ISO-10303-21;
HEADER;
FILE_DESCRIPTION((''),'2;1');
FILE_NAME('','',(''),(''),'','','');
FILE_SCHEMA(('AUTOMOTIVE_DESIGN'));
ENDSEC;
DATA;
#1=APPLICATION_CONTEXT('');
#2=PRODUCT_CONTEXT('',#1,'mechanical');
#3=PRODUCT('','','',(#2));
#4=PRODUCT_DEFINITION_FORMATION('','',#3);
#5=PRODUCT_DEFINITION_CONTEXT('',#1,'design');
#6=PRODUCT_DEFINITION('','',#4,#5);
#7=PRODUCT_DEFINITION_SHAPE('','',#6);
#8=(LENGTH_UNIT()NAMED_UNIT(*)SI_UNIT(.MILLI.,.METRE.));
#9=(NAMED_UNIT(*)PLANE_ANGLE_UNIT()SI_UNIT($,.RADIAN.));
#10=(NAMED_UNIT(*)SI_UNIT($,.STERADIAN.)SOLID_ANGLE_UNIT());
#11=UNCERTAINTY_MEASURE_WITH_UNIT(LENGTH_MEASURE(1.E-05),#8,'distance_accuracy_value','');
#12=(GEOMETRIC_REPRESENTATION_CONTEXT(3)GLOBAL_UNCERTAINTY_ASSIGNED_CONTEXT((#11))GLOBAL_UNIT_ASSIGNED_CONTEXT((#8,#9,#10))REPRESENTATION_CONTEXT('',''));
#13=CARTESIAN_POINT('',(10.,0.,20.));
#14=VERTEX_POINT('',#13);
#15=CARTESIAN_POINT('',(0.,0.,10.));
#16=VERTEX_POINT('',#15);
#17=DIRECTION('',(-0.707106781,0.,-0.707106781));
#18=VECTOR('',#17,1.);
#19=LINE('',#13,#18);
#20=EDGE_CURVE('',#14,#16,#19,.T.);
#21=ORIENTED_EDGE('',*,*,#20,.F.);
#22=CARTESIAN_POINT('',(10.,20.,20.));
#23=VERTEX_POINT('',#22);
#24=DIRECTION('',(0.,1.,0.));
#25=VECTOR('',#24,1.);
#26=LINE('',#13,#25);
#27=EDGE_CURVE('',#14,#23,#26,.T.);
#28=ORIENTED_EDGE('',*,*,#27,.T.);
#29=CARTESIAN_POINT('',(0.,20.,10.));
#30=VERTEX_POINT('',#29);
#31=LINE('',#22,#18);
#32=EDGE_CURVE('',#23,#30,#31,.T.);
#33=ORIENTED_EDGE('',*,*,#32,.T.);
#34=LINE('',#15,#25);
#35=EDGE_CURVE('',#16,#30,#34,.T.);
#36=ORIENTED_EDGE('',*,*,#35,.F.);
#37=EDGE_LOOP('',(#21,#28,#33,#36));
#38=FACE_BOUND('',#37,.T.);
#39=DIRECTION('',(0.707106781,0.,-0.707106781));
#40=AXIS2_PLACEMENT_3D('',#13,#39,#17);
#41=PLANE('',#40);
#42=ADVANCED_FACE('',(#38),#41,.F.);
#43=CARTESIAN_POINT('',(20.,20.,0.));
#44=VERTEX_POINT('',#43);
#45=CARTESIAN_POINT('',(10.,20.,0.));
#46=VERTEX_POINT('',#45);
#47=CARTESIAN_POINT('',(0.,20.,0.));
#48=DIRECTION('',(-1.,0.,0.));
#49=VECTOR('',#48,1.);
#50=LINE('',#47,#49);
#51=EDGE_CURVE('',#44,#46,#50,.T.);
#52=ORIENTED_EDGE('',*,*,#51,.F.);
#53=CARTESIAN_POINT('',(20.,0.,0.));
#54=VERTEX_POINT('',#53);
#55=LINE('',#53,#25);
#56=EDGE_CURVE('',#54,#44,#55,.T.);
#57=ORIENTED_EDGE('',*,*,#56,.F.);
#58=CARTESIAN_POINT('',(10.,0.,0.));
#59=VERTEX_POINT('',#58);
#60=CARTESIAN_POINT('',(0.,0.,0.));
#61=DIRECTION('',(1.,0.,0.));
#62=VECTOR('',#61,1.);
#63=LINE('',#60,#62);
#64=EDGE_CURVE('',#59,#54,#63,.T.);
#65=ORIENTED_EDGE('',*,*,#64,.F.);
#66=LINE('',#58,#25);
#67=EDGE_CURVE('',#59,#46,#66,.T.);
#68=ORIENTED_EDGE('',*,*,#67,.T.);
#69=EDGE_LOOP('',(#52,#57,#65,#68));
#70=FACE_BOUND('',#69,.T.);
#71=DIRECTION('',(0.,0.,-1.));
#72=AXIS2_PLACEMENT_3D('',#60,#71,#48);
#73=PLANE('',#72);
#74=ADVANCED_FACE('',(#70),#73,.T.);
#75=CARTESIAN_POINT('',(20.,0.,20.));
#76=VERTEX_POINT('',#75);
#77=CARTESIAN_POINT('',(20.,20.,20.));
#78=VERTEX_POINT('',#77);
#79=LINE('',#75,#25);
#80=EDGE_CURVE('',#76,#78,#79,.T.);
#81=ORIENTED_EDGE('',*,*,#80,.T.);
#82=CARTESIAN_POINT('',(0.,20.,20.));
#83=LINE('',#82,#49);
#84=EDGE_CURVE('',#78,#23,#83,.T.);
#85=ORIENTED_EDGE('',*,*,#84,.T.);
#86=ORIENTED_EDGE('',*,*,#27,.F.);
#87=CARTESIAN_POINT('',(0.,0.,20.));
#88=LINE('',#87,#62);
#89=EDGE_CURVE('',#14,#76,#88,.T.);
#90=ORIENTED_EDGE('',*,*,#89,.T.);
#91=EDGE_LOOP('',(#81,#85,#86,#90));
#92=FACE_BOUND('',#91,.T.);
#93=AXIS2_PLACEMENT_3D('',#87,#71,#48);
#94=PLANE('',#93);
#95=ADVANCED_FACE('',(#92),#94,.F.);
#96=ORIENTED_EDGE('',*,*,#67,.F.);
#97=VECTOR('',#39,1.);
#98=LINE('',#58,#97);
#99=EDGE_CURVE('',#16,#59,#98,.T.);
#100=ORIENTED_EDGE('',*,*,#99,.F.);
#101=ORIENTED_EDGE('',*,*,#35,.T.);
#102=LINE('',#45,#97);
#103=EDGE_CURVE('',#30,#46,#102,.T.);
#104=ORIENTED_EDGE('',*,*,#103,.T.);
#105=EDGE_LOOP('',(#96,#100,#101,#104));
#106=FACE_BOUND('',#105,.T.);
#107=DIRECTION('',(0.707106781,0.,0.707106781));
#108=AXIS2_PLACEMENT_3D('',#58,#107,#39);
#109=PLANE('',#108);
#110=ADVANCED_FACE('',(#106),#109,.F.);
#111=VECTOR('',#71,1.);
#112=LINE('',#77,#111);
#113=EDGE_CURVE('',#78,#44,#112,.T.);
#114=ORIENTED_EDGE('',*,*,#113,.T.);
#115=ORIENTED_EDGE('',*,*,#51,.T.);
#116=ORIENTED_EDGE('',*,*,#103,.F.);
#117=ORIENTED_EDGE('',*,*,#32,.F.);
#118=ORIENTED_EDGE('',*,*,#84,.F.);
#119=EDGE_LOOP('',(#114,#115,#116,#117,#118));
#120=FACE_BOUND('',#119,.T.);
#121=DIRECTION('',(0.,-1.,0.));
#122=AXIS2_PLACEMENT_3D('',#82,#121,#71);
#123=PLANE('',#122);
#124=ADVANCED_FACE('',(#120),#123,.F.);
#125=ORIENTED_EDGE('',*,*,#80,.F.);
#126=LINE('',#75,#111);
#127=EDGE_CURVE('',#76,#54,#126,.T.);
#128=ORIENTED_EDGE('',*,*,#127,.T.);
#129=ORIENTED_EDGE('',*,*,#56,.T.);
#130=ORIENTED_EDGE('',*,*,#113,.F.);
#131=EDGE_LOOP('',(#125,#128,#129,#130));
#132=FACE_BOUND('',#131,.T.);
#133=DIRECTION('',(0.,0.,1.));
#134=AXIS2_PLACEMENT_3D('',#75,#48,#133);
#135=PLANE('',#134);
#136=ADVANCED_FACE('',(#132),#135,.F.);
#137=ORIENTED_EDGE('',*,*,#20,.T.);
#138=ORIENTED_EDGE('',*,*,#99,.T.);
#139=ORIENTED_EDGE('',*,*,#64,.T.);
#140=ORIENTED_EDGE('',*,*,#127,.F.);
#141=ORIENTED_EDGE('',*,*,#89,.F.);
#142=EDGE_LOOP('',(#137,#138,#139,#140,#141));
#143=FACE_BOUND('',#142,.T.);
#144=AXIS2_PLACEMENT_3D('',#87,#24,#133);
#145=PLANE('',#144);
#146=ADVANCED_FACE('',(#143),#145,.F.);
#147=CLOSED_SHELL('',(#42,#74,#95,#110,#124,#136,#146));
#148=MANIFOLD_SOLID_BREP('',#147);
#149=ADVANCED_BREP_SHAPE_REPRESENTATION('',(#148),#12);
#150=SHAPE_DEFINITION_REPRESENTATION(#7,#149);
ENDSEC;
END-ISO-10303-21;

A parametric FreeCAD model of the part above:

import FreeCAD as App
import Part
import Sketcher

V = App.Vector
Q = App.Units.Quantity

doc = App.newDocument("Part")
body = doc.addObject("PartDesign::Body", "Body")

# Sketch on XY plane
sketch1 = doc.addObject("Sketcher::SketchObject", "Sketch")
body.addObject(sketch1)
sketch1.AttachmentSupport = (doc.XY_Plane, [""])
sketch1.MapMode = "FlatFace"
sketch1.addGeometry([
    Part.LineSegment(V(0, 20, 0), V(0, 0, 0)),
    Part.LineSegment(V(0, 0, 0), V(20, 0, 0)),
    Part.LineSegment(V(20, 0, 0), V(20, 20, 0)),
    Part.LineSegment(V(20, 20, 0), V(0, 20, 0)),
], False)
sketch1.addConstraint([
    Sketcher.Constraint("Coincident", 0, 2, 1, 1),
    Sketcher.Constraint("Coincident", 1, 2, 2, 1),
    Sketcher.Constraint("Coincident", 2, 2, 3, 1),
    Sketcher.Constraint("Coincident", 3, 2, 0, 1),
    Sketcher.Constraint("Vertical", 0),
    Sketcher.Constraint("Horizontal", 1),
    Sketcher.Constraint("Vertical", 2),
    Sketcher.Constraint("Horizontal", 3),
    Sketcher.Constraint("Coincident", 0, 2, -1, 1),
    Sketcher.Constraint("Equal", 3, 0),
    Sketcher.Constraint("DistanceX", 1, 1, 1, 2, Q("20 mm")),
])
pad1 = doc.addObject("PartDesign::Pad", "Pad")
body.addObject(pad1)
pad1.Profile = sketch1
pad1.Length = 20

# Sketch on XZ plane
sketch2 = doc.addObject("Sketcher::SketchObject", "Sketch001")
body.addObject(sketch2)
sketch2.AttachmentSupport = (doc.XZ_Plane, [""])
sketch2.MapMode = "FlatFace"
sketch2.AttachmentOffset = App.Placement(V(0, 0, -20), App.Rotation())
sketch2.addGeometry([
    Part.LineSegment(V(10, 0, 0), V(0, 0, 0)),
    Part.LineSegment(V(0, 0, 0), V(0, 10, 0)),
    Part.LineSegment(V(0, 10, 0), V(10, 0, 0)),
], False)
sketch2.addConstraint([
    Sketcher.Constraint("Coincident", 0, 2, 1, 1),
    Sketcher.Constraint("Coincident", 1, 2, 2, 1),
    Sketcher.Constraint("Coincident", 2, 2, 0, 1),
    Sketcher.Constraint("Horizontal", 0),
    Sketcher.Constraint("Vertical", 1),
    Sketcher.Constraint("Coincident", 0, 2, -1, 1),
    Sketcher.Constraint("Equal", 0, 1),
    Sketcher.Constraint("DistanceX", 0, 2, 0, 1, Q("10 mm")),
])
pocket1 = doc.addObject("PartDesign::Pocket", "Pocket")
body.addObject(pocket1)
pocket1.Profile = sketch2
pocket1.Length = 20
pocket1.Reversed = True

# Sketch on XZ plane
sketch3 = doc.addObject("Sketcher::SketchObject", "Sketch002")
body.addObject(sketch3)
sketch3.AttachmentSupport = (doc.XZ_Plane, [""])
sketch3.MapMode = "FlatFace"
sketch3.AttachmentOffset = App.Placement(V(0, 0, -20), App.Rotation())
sketch3.addGeometry([
    Part.LineSegment(V(0, 10, 0), V(0, 20, 0)),
    Part.LineSegment(V(0, 20, 0), V(10, 20, 0)),
    Part.LineSegment(V(10, 20, 0), V(0, 10, 0)),
], False)
sketch3.addConstraint([
    Sketcher.Constraint("Coincident", 0, 2, 1, 1),
    Sketcher.Constraint("Coincident", 1, 2, 2, 1),
    Sketcher.Constraint("Coincident", 2, 2, 0, 1),
    Sketcher.Constraint("Vertical", 0),
    Sketcher.Constraint("Horizontal", 1),
    Sketcher.Constraint("PointOnObject", 0, 2, -2),
    Sketcher.Constraint("Equal", 1, 0),
    Sketcher.Constraint("DistanceX", 1, 1, 1, 2, Q("10 mm")),
    Sketcher.Constraint("DistanceY", -1, 1, 0, 2, Q("20 mm")),
])
pocket2 = doc.addObject("PartDesign::Pocket", "Pocket001")
body.addObject(pocket2)
pocket2.Profile = sketch3
pocket2.Length = 20
pocket2.Reversed = True

doc.recompute()
